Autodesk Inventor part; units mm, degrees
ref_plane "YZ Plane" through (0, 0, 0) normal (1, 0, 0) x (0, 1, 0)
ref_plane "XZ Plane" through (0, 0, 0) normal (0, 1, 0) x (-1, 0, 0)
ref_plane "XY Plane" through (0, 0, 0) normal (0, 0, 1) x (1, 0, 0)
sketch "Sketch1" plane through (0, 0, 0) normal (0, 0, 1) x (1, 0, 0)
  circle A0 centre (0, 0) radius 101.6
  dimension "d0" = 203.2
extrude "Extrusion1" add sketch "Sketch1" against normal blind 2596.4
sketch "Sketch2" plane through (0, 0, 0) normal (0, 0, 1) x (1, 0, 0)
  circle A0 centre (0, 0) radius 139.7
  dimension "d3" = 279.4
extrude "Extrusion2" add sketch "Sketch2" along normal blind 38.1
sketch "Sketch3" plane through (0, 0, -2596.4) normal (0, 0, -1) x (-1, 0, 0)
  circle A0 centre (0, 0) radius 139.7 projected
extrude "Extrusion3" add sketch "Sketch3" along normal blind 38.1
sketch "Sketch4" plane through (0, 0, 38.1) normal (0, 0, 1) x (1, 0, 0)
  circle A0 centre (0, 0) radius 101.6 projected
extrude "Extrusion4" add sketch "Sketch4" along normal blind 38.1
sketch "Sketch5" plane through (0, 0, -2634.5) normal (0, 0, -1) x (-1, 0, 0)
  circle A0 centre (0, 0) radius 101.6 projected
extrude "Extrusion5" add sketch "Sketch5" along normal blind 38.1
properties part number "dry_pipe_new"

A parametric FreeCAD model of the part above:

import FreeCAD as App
import Part
import Sketcher
Q = App.Units.Quantity

doc = App.newDocument("Part")
body = doc.addObject("PartDesign::Body", "Body")

sketch1 = body.newObject("Sketcher::SketchObject", "Sketch")
sketch1.AttachmentSupport = (doc.getObject("XY_Plane"), [""])
sketch1.MapMode = "FlatFace"
sketch1.addGeometry(Part.Circle(App.Vector(0, 0, 0), App.Vector(0, 0, 1), 102), False)
sketch1.addConstraint([
    Sketcher.Constraint("Coincident", 0, 3, -1, 1),
    Sketcher.Constraint("Diameter", 0, Q("8 in")),
])
pad1 = body.newObject("PartDesign::Pad", "Pad")
pad1.Profile = sketch1
pad1.Length = 2596.4
pad1.Reversed = True

sketch2 = body.newObject("Sketcher::SketchObject", "Sketch001")
sketch2.AttachmentSupport = (doc.getObject("XY_Plane"), [""])
sketch2.MapMode = "FlatFace"
sketch2.addGeometry(Part.Circle(App.Vector(0, 0, 0), App.Vector(0, 0, 1), 140), False)
sketch2.addConstraint([
    Sketcher.Constraint("Coincident", 0, 3, -1, 1),
    Sketcher.Constraint("Diameter", 0, Q("11 in")),
])
pad2 = body.newObject("PartDesign::Pad", "Pad001")
pad2.Profile = sketch2
pad2.Length = Q("1.5 in")

sketch3 = body.newObject("Sketcher::SketchObject", "Sketch002")
sketch3.AttachmentSupport = (doc.getObject("XY_Plane"), [""])
sketch3.MapMode = "FlatFace"
sketch3.AttachmentOffset = App.Placement(App.Vector(0, 0, -2596.4), App.Rotation())
sketch3.addGeometry(Part.Circle(App.Vector(0, 0, 0), App.Vector(0, 0, 1), 140), False)
sketch3.addConstraint([
    Sketcher.Constraint("Coincident", 0, 3, -1, 1),
    Sketcher.Constraint("Diameter", 0, Q("11 in")),
])
pad3 = body.newObject("PartDesign::Pad", "Pad002")
pad3.Profile = sketch3
pad3.Length = Q("1.5 in")
pad3.Reversed = True

sketch4 = body.newObject("Sketcher::SketchObject", "Sketch003")
sketch4.AttachmentSupport = (doc.getObject("XY_Plane"), [""])
sketch4.MapMode = "FlatFace"
sketch4.AttachmentOffset = App.Placement(App.Vector(0, 0, 1.5 * 25.4), App.Rotation())
sketch4.addGeometry(Part.Circle(App.Vector(0, 0, 0), App.Vector(0, 0, 1), 102), False)
sketch4.addConstraint([
    Sketcher.Constraint("Coincident", 0, 3, -1, 1),
    Sketcher.Constraint("Diameter", 0, Q("8 in")),
])
pad4 = body.newObject("PartDesign::Pad", "Pad003")
pad4.Profile = sketch4
pad4.Length = Q("1.5 in")

sketch5 = body.newObject("Sketcher::SketchObject", "Sketch004")
sketch5.AttachmentSupport = (doc.getObject("XY_Plane"), [""])
sketch5.MapMode = "FlatFace"
sketch5.AttachmentOffset = App.Placement(App.Vector(0, 0, -2634.5), App.Rotation())
sketch5.addGeometry(Part.Circle(App.Vector(0, 0, 0), App.Vector(0, 0, 1), 102), False)
sketch5.addConstraint([
    Sketcher.Constraint("Coincident", 0, 3, -1, 1),
    Sketcher.Constraint("Diameter", 0, Q("8 in")),
])
pad5 = body.newObject("PartDesign::Pad", "Pad004")
pad5.Profile = sketch5
pad5.Length = Q("1.5 in")
pad5.Reversed = True

doc.recompute()
